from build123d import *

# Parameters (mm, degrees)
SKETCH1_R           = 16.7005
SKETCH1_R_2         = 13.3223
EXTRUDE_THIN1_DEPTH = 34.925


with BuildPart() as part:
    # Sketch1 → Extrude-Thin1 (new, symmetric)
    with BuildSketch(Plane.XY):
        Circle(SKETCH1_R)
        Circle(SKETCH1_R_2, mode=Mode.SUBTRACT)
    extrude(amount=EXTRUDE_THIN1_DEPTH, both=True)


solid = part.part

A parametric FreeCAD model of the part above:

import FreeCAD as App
import Part
import Sketcher
Q = App.Units.Quantity

doc = App.newDocument("Part")
body = doc.addObject("PartDesign::Body", "Body")

# Sketch on XY plane
sketch1 = body.newObject("Sketcher::SketchObject", "Sketch")
sketch1.AttachmentSupport = (doc.getObject("XY_Plane"), [""])
sketch1.MapMode = "FlatFace"
sketch1.addGeometry(Part.Circle(App.Vector(0, 0, 0), App.Vector(0, 0, 1), 17), False)
sketch1.addGeometry(Part.Circle(App.Vector(0, 0, 0), App.Vector(0, 0, 1), 13), False)
sketch1.addConstraint(Sketcher.Constraint("Coincident", 0, 3, -1, 1))
sketch1.addConstraint(Sketcher.Constraint("Coincident", 1, 3, -1, 1))
sketch1.addConstraint(Sketcher.Constraint("Diameter", 0, Q("1.315 in")))
sketch1.addConstraint(Sketcher.Constraint("Diameter", 1, Q("1.049 in")))
pad1 = body.newObject("PartDesign::Pad", "Pad")
pad1.Profile = sketch1
pad1.Length = Q("2.75 in")
pad1.Midplane = True

doc.recompute()
